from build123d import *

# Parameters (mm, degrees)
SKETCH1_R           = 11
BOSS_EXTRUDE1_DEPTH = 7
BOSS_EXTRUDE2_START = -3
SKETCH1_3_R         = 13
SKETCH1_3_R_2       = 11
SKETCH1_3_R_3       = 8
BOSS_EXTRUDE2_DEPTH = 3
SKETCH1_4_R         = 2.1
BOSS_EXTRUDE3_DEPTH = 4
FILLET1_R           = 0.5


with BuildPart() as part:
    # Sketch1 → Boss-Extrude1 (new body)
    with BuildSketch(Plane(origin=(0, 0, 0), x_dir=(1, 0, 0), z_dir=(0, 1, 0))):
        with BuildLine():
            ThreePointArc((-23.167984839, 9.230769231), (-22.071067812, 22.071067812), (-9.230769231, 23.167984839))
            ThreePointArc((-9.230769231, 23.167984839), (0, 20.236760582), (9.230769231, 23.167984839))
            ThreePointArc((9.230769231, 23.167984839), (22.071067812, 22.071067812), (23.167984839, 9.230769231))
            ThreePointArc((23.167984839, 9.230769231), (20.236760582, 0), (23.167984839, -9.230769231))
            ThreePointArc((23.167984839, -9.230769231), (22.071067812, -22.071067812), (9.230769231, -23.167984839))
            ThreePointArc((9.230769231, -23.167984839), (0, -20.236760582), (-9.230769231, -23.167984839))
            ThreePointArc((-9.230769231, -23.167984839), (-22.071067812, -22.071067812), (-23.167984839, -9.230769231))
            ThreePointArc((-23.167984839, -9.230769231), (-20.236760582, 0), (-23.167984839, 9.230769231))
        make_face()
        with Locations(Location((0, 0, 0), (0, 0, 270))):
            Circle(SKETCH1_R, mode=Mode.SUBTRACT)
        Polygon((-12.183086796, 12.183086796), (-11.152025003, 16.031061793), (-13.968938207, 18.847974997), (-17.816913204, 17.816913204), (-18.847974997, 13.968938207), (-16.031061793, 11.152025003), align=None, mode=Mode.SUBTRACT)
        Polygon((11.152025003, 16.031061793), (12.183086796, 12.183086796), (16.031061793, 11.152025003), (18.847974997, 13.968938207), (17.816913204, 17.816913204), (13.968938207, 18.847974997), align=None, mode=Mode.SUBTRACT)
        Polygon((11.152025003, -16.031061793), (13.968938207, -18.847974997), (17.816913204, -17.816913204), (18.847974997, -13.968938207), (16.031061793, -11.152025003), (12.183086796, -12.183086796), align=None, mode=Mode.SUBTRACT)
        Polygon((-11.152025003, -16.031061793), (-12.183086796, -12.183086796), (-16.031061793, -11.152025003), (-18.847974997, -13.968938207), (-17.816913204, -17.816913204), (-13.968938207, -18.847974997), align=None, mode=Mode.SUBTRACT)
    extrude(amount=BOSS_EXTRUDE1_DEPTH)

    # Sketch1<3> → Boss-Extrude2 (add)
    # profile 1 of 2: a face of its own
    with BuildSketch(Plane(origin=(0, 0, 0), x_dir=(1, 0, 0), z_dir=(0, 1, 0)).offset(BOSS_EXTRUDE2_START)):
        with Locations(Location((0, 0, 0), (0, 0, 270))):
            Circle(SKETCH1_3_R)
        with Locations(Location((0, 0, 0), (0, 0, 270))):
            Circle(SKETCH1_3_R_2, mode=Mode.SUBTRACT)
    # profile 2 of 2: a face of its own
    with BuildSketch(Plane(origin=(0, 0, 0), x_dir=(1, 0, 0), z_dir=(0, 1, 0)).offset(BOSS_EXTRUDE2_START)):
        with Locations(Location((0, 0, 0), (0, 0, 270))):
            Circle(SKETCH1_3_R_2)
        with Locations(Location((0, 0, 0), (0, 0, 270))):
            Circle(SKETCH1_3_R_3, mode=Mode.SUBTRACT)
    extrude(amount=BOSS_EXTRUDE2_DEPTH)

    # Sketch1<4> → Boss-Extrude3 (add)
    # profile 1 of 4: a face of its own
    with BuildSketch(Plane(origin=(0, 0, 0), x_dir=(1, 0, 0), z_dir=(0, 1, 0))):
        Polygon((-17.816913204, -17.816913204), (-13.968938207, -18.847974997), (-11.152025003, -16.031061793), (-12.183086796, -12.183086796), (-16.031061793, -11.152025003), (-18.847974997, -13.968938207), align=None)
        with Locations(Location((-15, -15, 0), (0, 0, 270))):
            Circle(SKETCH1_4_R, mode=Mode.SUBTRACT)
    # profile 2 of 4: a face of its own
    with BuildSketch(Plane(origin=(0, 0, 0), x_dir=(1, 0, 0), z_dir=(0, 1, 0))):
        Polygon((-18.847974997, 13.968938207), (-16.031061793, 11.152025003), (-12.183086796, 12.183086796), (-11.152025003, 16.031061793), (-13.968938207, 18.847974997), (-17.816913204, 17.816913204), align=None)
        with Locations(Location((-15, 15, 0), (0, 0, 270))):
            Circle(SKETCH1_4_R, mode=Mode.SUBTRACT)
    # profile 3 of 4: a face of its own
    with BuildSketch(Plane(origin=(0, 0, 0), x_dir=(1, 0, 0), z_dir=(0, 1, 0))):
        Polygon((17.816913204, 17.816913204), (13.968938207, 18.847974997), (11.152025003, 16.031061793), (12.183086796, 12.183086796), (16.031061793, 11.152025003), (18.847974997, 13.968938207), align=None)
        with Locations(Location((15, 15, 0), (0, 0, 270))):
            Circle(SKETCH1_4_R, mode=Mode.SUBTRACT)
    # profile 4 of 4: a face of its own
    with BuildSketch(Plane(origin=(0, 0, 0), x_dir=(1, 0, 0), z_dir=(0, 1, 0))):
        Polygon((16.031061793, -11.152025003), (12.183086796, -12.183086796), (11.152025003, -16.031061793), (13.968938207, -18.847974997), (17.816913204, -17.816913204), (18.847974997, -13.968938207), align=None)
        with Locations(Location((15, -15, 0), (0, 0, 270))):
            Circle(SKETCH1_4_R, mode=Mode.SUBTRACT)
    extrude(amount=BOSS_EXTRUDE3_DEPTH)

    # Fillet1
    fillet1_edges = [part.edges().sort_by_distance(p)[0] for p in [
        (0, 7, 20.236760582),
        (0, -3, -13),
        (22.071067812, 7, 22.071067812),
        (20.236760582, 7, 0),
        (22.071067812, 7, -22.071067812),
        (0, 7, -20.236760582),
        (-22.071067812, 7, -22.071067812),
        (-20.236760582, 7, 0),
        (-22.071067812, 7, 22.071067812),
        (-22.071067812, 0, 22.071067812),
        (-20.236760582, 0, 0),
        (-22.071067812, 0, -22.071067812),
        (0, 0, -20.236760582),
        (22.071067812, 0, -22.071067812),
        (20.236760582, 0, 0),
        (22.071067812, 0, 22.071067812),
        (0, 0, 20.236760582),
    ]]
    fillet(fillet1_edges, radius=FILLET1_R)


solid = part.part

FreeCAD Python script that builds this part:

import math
import FreeCAD as App
import Part
import Sketcher
Q = App.Units.Quantity


def edges_at(feature, points):
    """Names of the edges that pass closest to the given points."""
    edges = feature.Shape.Edges
    near = lambda p: min(range(len(edges)), key=lambda i: edges[i].distToShape(Part.Vertex(*p))[0])
    return sorted({f"Edge{near(p) + 1}" for p in points})

doc = App.newDocument("Part")
params = doc.addObject("Spreadsheet::Sheet", "Params")
for row, (alias, value) in enumerate([
    ("sketch1_diameter", "22 mm"),
    ("sketch1_radius", "10 mm"),
    ("sketch1_radius2", "16 mm"),
    ("pad1_length", "7 mm"),
    ("sketch2_diameter", "26 mm"),
    ("sketch2_diameter2", "16 mm"),
    ("pad2_length", "3 mm"),
    ("sketch3_diameter", "4.2 mm"),
    ("pad3_length", "4 mm"),
    ("fillet_radius", "0.5 mm"),
], start=1):
    params.set(f"A{row}", alias)
    params.set(f"B{row}", "=" + value)
    params.setAlias(f"B{row}", alias)

body = doc.addObject("PartDesign::Body", "Body")

sketch1 = body.newObject("Sketcher::SketchObject", "Sketch")
sketch1.AttachmentSupport = (doc.getObject("XZ_Plane"), [""])
sketch1.MapMode = "FlatFace"
sketch1.addGeometry([
    Part.ArcOfCircle(Part.Circle(App.Vector(-15, -15, 0), App.Vector(0, 0, 1), 10), math.radians(144.765582), math.radians(305.234418)),
    Part.ArcOfCircle(Part.Circle(App.Vector(-36.236761, 0, 0), App.Vector(0, 0, 1), 16), math.radians(-35.234418), math.radians(35.234418)),
    Part.ArcOfCircle(Part.Circle(App.Vector(-15, 15, 0), App.Vector(0, 0, 1), 10), math.radians(54.765582), math.radians(215.234418)),
    Part.ArcOfCircle(Part.Circle(App.Vector(0, 36.236761, 0), App.Vector(0, 0, 1), 16), math.radians(-125.234418), math.radians(-54.765582)),
    Part.ArcOfCircle(Part.Circle(App.Vector(15, 15, 0), App.Vector(0, 0, 1), 10), math.radians(-35.234418), math.radians(125.234418)),
    Part.ArcOfCircle(Part.Circle(App.Vector(36.236761, 0, 0), App.Vector(0, 0, 1), 16), math.radians(144.765582), math.radians(215.234418)),
    Part.ArcOfCircle(Part.Circle(App.Vector(15, -15, 0), App.Vector(0, 0, 1), 10), math.radians(-125.234418), math.radians(35.234418)),
    Part.ArcOfCircle(Part.Circle(App.Vector(0, -36.236761, 0), App.Vector(0, 0, 1), 16), math.radians(54.765582), math.radians(125.234418)),
    Part.LineSegment(App.Vector(11.152025, 16.031062, 0), App.Vector(12.183087, 12.183087, 0)),
    Part.LineSegment(App.Vector(12.183087, 12.183087, 0), App.Vector(16.031062, 11.152025, 0)),
    Part.LineSegment(App.Vector(16.031062, 11.152025, 0), App.Vector(18.847975, 13.968938, 0)),
    Part.LineSegment(App.Vector(18.847975, 13.968938, 0), App.Vector(17.816913, 17.816913, 0)),
    Part.LineSegment(App.Vector(17.816913, 17.816913, 0), App.Vector(13.968938, 18.847975, 0)),
    Part.LineSegment(App.Vector(13.968938, 18.847975, 0), App.Vector(11.152025, 16.031062, 0)),
    Part.LineSegment(App.Vector(-11.152025, 16.031062, 0), App.Vector(-13.968938, 18.847975, 0)),
    Part.LineSegment(App.Vector(-13.968938, 18.847975, 0), App.Vector(-17.816913, 17.816913, 0)),
    Part.LineSegment(App.Vector(-17.816913, 17.816913, 0), App.Vector(-18.847975, 13.968938, 0)),
    Part.LineSegment(App.Vector(-18.847975, 13.968938, 0), App.Vector(-16.031062, 11.152025, 0)),
    Part.LineSegment(App.Vector(-16.031062, 11.152025, 0), App.Vector(-12.183087, 12.183087, 0)),
    Part.LineSegment(App.Vector(-12.183087, 12.183087, 0), App.Vector(-11.152025, 16.031062, 0)),
    Part.LineSegment(App.Vector(11.152025, -16.031062, 0), App.Vector(13.968938, -18.847975, 0)),
    Part.LineSegment(App.Vector(13.968938, -18.847975, 0), App.Vector(17.816913, -17.816913, 0)),
    Part.LineSegment(App.Vector(17.816913, -17.816913, 0), App.Vector(18.847975, -13.968938, 0)),
    Part.LineSegment(App.Vector(18.847975, -13.968938, 0), App.Vector(16.031062, -11.152025, 0)),
    Part.LineSegment(App.Vector(16.031062, -11.152025, 0), App.Vector(12.183087, -12.183087, 0)),
    Part.LineSegment(App.Vector(12.183087, -12.183087, 0), App.Vector(11.152025, -16.031062, 0)),
    Part.Circle(App.Vector(0, 0, 0), App.Vector(0, 0, 1), 11),
    Part.LineSegment(App.Vector(-12.183087, -12.183087, 0), App.Vector(-16.031062, -11.152025, 0)),
    Part.LineSegment(App.Vector(-16.031062, -11.152025, 0), App.Vector(-18.847975, -13.968938, 0)),
    Part.LineSegment(App.Vector(-18.847975, -13.968938, 0), App.Vector(-17.816913, -17.816913, 0)),
    Part.LineSegment(App.Vector(-17.816913, -17.816913, 0), App.Vector(-13.968938, -18.847975, 0)),
    Part.LineSegment(App.Vector(-13.968938, -18.847975, 0), App.Vector(-11.152025, -16.031062, 0)),
    Part.LineSegment(App.Vector(-11.152025, -16.031062, 0), App.Vector(-12.183087, -12.183087, 0)),
], False)
sketch1.addConstraint([
    Sketcher.Constraint("Tangent", 0, 1, 1, 1),
    Sketcher.Constraint("Tangent", 1, 2, 2, 2),
    Sketcher.Constraint("Tangent", 2, 1, 3, 1),
    Sketcher.Constraint("Tangent", 3, 2, 4, 2),
    Sketcher.Constraint("Tangent", 4, 1, 5, 1),
    Sketcher.Constraint("Tangent", 5, 2, 6, 2),
    Sketcher.Constraint("Tangent", 6, 1, 7, 1),
    Sketcher.Constraint("Tangent", 7, 2, 0, 2),
    Sketcher.Constraint("Coincident", 8, 2, 9, 1),
    Sketcher.Constraint("Coincident", 9, 2, 10, 1),
    Sketcher.Constraint("Coincident", 10, 2, 11, 1),
    Sketcher.Constraint("Coincident", 11, 2, 12, 1),
    Sketcher.Constraint("Coincident", 12, 2, 13, 1),
    Sketcher.Constraint("Coincident", 13, 2, 8, 1),
    Sketcher.Constraint("Coincident", 14, 2, 15, 1),
    Sketcher.Constraint("Coincident", 15, 2, 16, 1),
    Sketcher.Constraint("Coincident", 16, 2, 17, 1),
    Sketcher.Constraint("Coincident", 17, 2, 18, 1),
    Sketcher.Constraint("Coincident", 18, 2, 19, 1),
    Sketcher.Constraint("Coincident", 19, 2, 14, 1),
    Sketcher.Constraint("Coincident", 20, 2, 21, 1),
    Sketcher.Constraint("Coincident", 21, 2, 22, 1),
    Sketcher.Constraint("Coincident", 22, 2, 23, 1),
    Sketcher.Constraint("Coincident", 23, 2, 24, 1),
    Sketcher.Constraint("Coincident", 24, 2, 25, 1),
    Sketcher.Constraint("Coincident", 25, 2, 20, 1),
    Sketcher.Constraint("Coincident", 27, 2, 28, 1),
    Sketcher.Constraint("Coincident", 28, 2, 29, 1),
    Sketcher.Constraint("Coincident", 29, 2, 30, 1),
    Sketcher.Constraint("Coincident", 30, 2, 31, 1),
    Sketcher.Constraint("Coincident", 31, 2, 32, 1),
    Sketcher.Constraint("Coincident", 32, 2, 27, 1),
    Sketcher.Constraint("Coincident", 26, 3, -1, 1),
    Sketcher.Constraint("Equal", 0, 2),
    Sketcher.Constraint("Equal", 1, 3),
    Sketcher.Constraint("Equal", 2, 4),
    Sketcher.Constraint("Equal", 3, 5),
    Sketcher.Constraint("Equal", 4, 6),
    Sketcher.Constraint("Equal", 5, 7),
    Sketcher.Constraint("Symmetric", 0, 3, 4, 3, -1, 1),
    Sketcher.Constraint("Symmetric", 2, 3, 6, 3, -1, 1),
    Sketcher.Constraint("Symmetric", 14, 2, 20, 2, -1, 1),
    Sketcher.Constraint("Symmetric", 15, 2, 21, 2, -1, 1),
    Sketcher.Constraint("Symmetric", 16, 2, 22, 2, -1, 1),
    Sketcher.Constraint("Symmetric", 17, 2, 23, 2, -1, 1),
    Sketcher.Constraint("Symmetric", 18, 2, 24, 2, -1, 1),
    Sketcher.Constraint("Symmetric", 19, 2, 25, 2, -1, 1),
    Sketcher.Constraint("Symmetric", 9, 2, 27, 2, -1, 1),
    Sketcher.Constraint("Symmetric", 10, 2, 28, 2, -1, 1),
    Sketcher.Constraint("Symmetric", 11, 2, 29, 2, -1, 1),
    Sketcher.Constraint("Symmetric", 12, 2, 30, 2, -1, 1),
    Sketcher.Constraint("Symmetric", 13, 2, 31, 2, -1, 1),
    Sketcher.Constraint("Symmetric", 8, 2, 32, 2, -1, 1),
    Sketcher.Constraint("Symmetric", 2, 3, 4, 3, -2),
    Sketcher.Constraint("Symmetric", 12, 2, 14, 2, -2),
    Sketcher.Constraint("Symmetric", 11, 2, 15, 2, -2),
    Sketcher.Constraint("Symmetric", 10, 2, 16, 2, -2),
    Sketcher.Constraint("Symmetric", 9, 2, 17, 2, -2),
    Sketcher.Constraint("Symmetric", 8, 2, 18, 2, -2),
    Sketcher.Constraint("Symmetric", 13, 2, 19, 2, -2),
    Sketcher.Constraint("Parallel", 8, 11),
    Sketcher.Constraint("Parallel", 9, 12),
    Sketcher.Constraint("Parallel", 10, 13),
    Sketcher.Constraint("Perpendicular", 13, 14),
    Sketcher.Constraint("Perpendicular", 11, 15),
    Sketcher.Constraint("Equal", 8, 9),
    Sketcher.Constraint("Equal", 9, 10),
    Sketcher.Constraint("Equal", 10, 11),
    Sketcher.Constraint("Diameter", 26, 22.0),
    Sketcher.Constraint("Radius", 0, 10.0),
    Sketcher.Constraint("Radius", 1, 16.0),
    Sketcher.Constraint("Angle", 8, Q("-75 deg")),
    Sketcher.Constraint("DistanceX", 0, 3, -1, 1, 15.0),
    Sketcher.Constraint("DistanceY", 0, 3, -1, 1, 15.0),
    Sketcher.Constraint("DistanceY", 8, 2, 3, 2, 10.984898),
    Sketcher.Constraint("DistanceX", 8, 2, 4, 1, 10.984898),
    Sketcher.Constraint("DistanceX", -1, 1, 9, 2, 16.031062),
])
sketch1.setExpression("Constraints[68]", "Params.sketch1_diameter")
sketch1.setExpression("Constraints[69]", "Params.sketch1_radius")
sketch1.setExpression("Constraints[70]", "Params.sketch1_radius2")
pad1 = body.newObject("PartDesign::Pad", "Pad")
pad1.Profile = sketch1
pad1.setExpression("Length", "Params.pad1_length")
pad1.Reversed = True

sketch2 = body.newObject("Sketcher::SketchObject", "Sketch001")
sketch2.AttachmentSupport = (doc.getObject("XZ_Plane"), [""])
sketch2.MapMode = "FlatFace"
sketch2.AttachmentOffset = App.Placement(App.Vector(0, 0, 3), App.Rotation())
sketch2.addGeometry([
    Part.Circle(App.Vector(0, 0, 0), App.Vector(0, 0, 1), 13),
    Part.Circle(App.Vector(0, 0, 0), App.Vector(0, 0, 1), 8),
], False)
sketch2.addConstraint([
    Sketcher.Constraint("Coincident", 0, 3, -1, 1),
    Sketcher.Constraint("Coincident", 1, 3, -1, 1),
    Sketcher.Constraint("Diameter", 0, 26.0),
    Sketcher.Constraint("Diameter", 1, 16.0),
])
sketch2.setExpression("Constraints[2]", "Params.sketch2_diameter")
sketch2.setExpression("Constraints[3]", "Params.sketch2_diameter2")
pad2 = body.newObject("PartDesign::Pad", "Pad001")
pad2.Profile = sketch2
pad2.setExpression("Length", "Params.pad2_length")
pad2.Reversed = True

sketch3 = body.newObject("Sketcher::SketchObject", "Sketch002")
sketch3.AttachmentSupport = (doc.getObject("XZ_Plane"), [""])
sketch3.MapMode = "FlatFace"
sketch3.addGeometry([
    Part.LineSegment(App.Vector(-17.816913, 17.816913, 0), App.Vector(-13.968938, 18.847975, 0)),
    Part.LineSegment(App.Vector(-13.968938, 18.847975, 0), App.Vector(-11.152025, 16.031062, 0)),
    Part.LineSegment(App.Vector(-11.152025, 16.031062, 0), App.Vector(-12.183087, 12.183087, 0)),
    Part.LineSegment(App.Vector(-12.183087, 12.183087, 0), App.Vector(-16.031062, 11.152025, 0)),
    Part.LineSegment(App.Vector(-16.031062, 11.152025, 0), App.Vector(-18.847975, 13.968938, 0)),
    Part.LineSegment(App.Vector(-18.847975, 13.968938, 0), App.Vector(-17.816913, 17.816913, 0)),
    Part.Circle(App.Vector(-15, 15, 0), App.Vector(0, 0, 1), 2.1),
    Part.LineSegment(App.Vector(-18.847975, -13.968938, 0), App.Vector(-16.031062, -11.152025, 0)),
    Part.LineSegment(App.Vector(-16.031062, -11.152025, 0), App.Vector(-12.183087, -12.183087, 0)),
    Part.LineSegment(App.Vector(-12.183087, -12.183087, 0), App.Vector(-11.152025, -16.031062, 0)),
    Part.LineSegment(App.Vector(-11.152025, -16.031062, 0), App.Vector(-13.968938, -18.847975, 0)),
    Part.LineSegment(App.Vector(-13.968938, -18.847975, 0), App.Vector(-17.816913, -17.816913, 0)),
    Part.LineSegment(App.Vector(-17.816913, -17.816913, 0), App.Vector(-18.847975, -13.968938, 0)),
    Part.Circle(App.Vector(-15, -15, 0), App.Vector(0, 0, 1), 2.1),
    Part.LineSegment(App.Vector(17.816913, -17.816913, 0), App.Vector(13.968938, -18.847975, 0)),
    Part.LineSegment(App.Vector(13.968938, -18.847975, 0), App.Vector(11.152025, -16.031062, 0)),
    Part.LineSegment(App.Vector(11.152025, -16.031062, 0), App.Vector(12.183087, -12.183087, 0)),
    Part.LineSegment(App.Vector(12.183087, -12.183087, 0), App.Vector(16.031062, -11.152025, 0)),
    Part.LineSegment(App.Vector(16.031062, -11.152025, 0), App.Vector(18.847975, -13.968938, 0)),
    Part.LineSegment(App.Vector(18.847975, -13.968938, 0), App.Vector(17.816913, -17.816913, 0)),
    Part.Circle(App.Vector(15, -15, 0), App.Vector(0, 0, 1), 2.1),
    Part.LineSegment(App.Vector(16.031062, 11.152025, 0), App.Vector(12.183087, 12.183087, 0)),
    Part.LineSegment(App.Vector(12.183087, 12.183087, 0), App.Vector(11.152025, 16.031062, 0)),
    Part.LineSegment(App.Vector(11.152025, 16.031062, 0), App.Vector(13.968938, 18.847975, 0)),
    Part.LineSegment(App.Vector(13.968938, 18.847975, 0), App.Vector(17.816913, 17.816913, 0)),
    Part.LineSegment(App.Vector(17.816913, 17.816913, 0), App.Vector(18.847975, 13.968938, 0)),
    Part.LineSegment(App.Vector(18.847975, 13.968938, 0), App.Vector(16.031062, 11.152025, 0)),
    Part.Circle(App.Vector(15, 15, 0), App.Vector(0, 0, 1), 2.1),
], False)
sketch3.addConstraint([
    Sketcher.Constraint("Coincident", 0, 2, 1, 1),
    Sketcher.Constraint("Coincident", 1, 2, 2, 1),
    Sketcher.Constraint("Coincident", 2, 2, 3, 1),
    Sketcher.Constraint("Coincident", 3, 2, 4, 1),
    Sketcher.Constraint("Coincident", 4, 2, 5, 1),
    Sketcher.Constraint("Coincident", 5, 2, 0, 1),
    Sketcher.Constraint("Coincident", 7, 2, 8, 1),
    Sketcher.Constraint("Coincident", 8, 2, 9, 1),
    Sketcher.Constraint("Coincident", 9, 2, 10, 1),
    Sketcher.Constraint("Coincident", 10, 2, 11, 1),
    Sketcher.Constraint("Coincident", 11, 2, 12, 1),
    Sketcher.Constraint("Coincident", 12, 2, 7, 1),
    Sketcher.Constraint("Coincident", 14, 2, 15, 1),
    Sketcher.Constraint("Coincident", 15, 2, 16, 1),
    Sketcher.Constraint("Coincident", 16, 2, 17, 1),
    Sketcher.Constraint("Coincident", 17, 2, 18, 1),
    Sketcher.Constraint("Coincident", 18, 2, 19, 1),
    Sketcher.Constraint("Coincident", 19, 2, 14, 1),
    Sketcher.Constraint("Coincident", 21, 2, 22, 1),
    Sketcher.Constraint("Coincident", 22, 2, 23, 1),
    Sketcher.Constraint("Coincident", 23, 2, 24, 1),
    Sketcher.Constraint("Coincident", 24, 2, 25, 1),
    Sketcher.Constraint("Coincident", 25, 2, 26, 1),
    Sketcher.Constraint("Coincident", 26, 2, 21, 1),
    Sketcher.Constraint("Equal", 6, 13),
    Sketcher.Constraint("Equal", 13, 20),
    Sketcher.Constraint("Equal", 20, 27),
    Sketcher.Constraint("Symmetric", 6, 3, 20, 3, -1, 1),
    Sketcher.Constraint("Symmetric", 13, 3, 27, 3, -1, 1),
    Sketcher.Constraint("Symmetric", 0, 2, 14, 2, -1, 1),
    Sketcher.Constraint("Symmetric", 1, 2, 15, 2, -1, 1),
    Sketcher.Constraint("Symmetric", 2, 2, 16, 2, -1, 1),
    Sketcher.Constraint("Symmetric", 3, 2, 17, 2, -1, 1),
    Sketcher.Constraint("Symmetric", 4, 2, 18, 2, -1, 1),
    Sketcher.Constraint("Symmetric", 5, 2, 19, 2, -1, 1),
    Sketcher.Constraint("Symmetric", 8, 2, 21, 2, -1, 1),
    Sketcher.Constraint("Symmetric", 9, 2, 22, 2, -1, 1),
    Sketcher.Constraint("Symmetric", 10, 2, 23, 2, -1, 1),
    Sketcher.Constraint("Symmetric", 11, 2, 24, 2, -1, 1),
    Sketcher.Constraint("Symmetric", 12, 2, 25, 2, -1, 1),
    Sketcher.Constraint("Symmetric", 7, 2, 26, 2, -1, 1),
    Sketcher.Constraint("Symmetric", 13, 3, 20, 3, -2),
    Sketcher.Constraint("Symmetric", 10, 2, 14, 2, -2),
    Sketcher.Constraint("Symmetric", 9, 2, 15, 2, -2),
    Sketcher.Constraint("Symmetric", 8, 2, 16, 2, -2),
    Sketcher.Constraint("Symmetric", 7, 2, 17, 2, -2),
    Sketcher.Constraint("Symmetric", 12, 2, 18, 2, -2),
    Sketcher.Constraint("Symmetric", 11, 2, 19, 2, -2),
    Sketcher.Constraint("Parallel", 0, 3),
    Sketcher.Constraint("Parallel", 1, 4),
    Sketcher.Constraint("Parallel", 2, 5),
    Sketcher.Constraint("Perpendicular", 4, 7),
    Sketcher.Constraint("Perpendicular", 5, 8),
    Sketcher.Constraint("Equal", 0, 1),
    Sketcher.Constraint("Equal", 1, 2),
    Sketcher.Constraint("Equal", 2, 3),
    Sketcher.Constraint("Diameter", 6, 4.2),
    Sketcher.Constraint("Angle", 0, Q("15 deg")),
    Sketcher.Constraint("DistanceX", 6, 3, -1, 1, 15.0),
    Sketcher.Constraint("DistanceY", -1, 1, 6, 3, 15.0),
    Sketcher.Constraint("DistanceX", 0, 2, -1, 1, 13.968938),
    Sketcher.Constraint("DistanceY", -1, 1, 1, 2, 16.031062),
    Sketcher.Constraint("DistanceX", 3, 2, -1, 1, 16.031062),
])
sketch3.setExpression("Constraints[56]", "Params.sketch3_diameter")
pad3 = body.newObject("PartDesign::Pad", "Pad002")
pad3.Profile = sketch3
pad3.setExpression("Length", "Params.pad3_length")
pad3.Reversed = True
doc.recompute()

fillet = body.newObject("PartDesign::Fillet", "Fillet")
fillet.Base = (pad3, edges_at(pad3, [
    (0, 7, 20.237),
    (0, -3, -13),
    (22.071, 7, 22.071),
    (20.237, 7, 0),
    (22.071, 7, -22.071),
    (0, 7, -20.237),
    (-22.071, 7, -22.071),
    (-20.237, 7, 0),
    (-22.071, 7, 22.071),
    (-22.071, 0, 22.071),
    (-20.237, 0, 0),
    (-22.071, 0, -22.071),
    (0, 0, -20.237),
    (22.071, 0, -22.071),
    (20.237, 0, 0),
    (22.071, 0, 22.071),
    (0, 0, 20.237),
]))
fillet.setExpression("Radius", "Params.fillet_radius")

doc.recompute()
